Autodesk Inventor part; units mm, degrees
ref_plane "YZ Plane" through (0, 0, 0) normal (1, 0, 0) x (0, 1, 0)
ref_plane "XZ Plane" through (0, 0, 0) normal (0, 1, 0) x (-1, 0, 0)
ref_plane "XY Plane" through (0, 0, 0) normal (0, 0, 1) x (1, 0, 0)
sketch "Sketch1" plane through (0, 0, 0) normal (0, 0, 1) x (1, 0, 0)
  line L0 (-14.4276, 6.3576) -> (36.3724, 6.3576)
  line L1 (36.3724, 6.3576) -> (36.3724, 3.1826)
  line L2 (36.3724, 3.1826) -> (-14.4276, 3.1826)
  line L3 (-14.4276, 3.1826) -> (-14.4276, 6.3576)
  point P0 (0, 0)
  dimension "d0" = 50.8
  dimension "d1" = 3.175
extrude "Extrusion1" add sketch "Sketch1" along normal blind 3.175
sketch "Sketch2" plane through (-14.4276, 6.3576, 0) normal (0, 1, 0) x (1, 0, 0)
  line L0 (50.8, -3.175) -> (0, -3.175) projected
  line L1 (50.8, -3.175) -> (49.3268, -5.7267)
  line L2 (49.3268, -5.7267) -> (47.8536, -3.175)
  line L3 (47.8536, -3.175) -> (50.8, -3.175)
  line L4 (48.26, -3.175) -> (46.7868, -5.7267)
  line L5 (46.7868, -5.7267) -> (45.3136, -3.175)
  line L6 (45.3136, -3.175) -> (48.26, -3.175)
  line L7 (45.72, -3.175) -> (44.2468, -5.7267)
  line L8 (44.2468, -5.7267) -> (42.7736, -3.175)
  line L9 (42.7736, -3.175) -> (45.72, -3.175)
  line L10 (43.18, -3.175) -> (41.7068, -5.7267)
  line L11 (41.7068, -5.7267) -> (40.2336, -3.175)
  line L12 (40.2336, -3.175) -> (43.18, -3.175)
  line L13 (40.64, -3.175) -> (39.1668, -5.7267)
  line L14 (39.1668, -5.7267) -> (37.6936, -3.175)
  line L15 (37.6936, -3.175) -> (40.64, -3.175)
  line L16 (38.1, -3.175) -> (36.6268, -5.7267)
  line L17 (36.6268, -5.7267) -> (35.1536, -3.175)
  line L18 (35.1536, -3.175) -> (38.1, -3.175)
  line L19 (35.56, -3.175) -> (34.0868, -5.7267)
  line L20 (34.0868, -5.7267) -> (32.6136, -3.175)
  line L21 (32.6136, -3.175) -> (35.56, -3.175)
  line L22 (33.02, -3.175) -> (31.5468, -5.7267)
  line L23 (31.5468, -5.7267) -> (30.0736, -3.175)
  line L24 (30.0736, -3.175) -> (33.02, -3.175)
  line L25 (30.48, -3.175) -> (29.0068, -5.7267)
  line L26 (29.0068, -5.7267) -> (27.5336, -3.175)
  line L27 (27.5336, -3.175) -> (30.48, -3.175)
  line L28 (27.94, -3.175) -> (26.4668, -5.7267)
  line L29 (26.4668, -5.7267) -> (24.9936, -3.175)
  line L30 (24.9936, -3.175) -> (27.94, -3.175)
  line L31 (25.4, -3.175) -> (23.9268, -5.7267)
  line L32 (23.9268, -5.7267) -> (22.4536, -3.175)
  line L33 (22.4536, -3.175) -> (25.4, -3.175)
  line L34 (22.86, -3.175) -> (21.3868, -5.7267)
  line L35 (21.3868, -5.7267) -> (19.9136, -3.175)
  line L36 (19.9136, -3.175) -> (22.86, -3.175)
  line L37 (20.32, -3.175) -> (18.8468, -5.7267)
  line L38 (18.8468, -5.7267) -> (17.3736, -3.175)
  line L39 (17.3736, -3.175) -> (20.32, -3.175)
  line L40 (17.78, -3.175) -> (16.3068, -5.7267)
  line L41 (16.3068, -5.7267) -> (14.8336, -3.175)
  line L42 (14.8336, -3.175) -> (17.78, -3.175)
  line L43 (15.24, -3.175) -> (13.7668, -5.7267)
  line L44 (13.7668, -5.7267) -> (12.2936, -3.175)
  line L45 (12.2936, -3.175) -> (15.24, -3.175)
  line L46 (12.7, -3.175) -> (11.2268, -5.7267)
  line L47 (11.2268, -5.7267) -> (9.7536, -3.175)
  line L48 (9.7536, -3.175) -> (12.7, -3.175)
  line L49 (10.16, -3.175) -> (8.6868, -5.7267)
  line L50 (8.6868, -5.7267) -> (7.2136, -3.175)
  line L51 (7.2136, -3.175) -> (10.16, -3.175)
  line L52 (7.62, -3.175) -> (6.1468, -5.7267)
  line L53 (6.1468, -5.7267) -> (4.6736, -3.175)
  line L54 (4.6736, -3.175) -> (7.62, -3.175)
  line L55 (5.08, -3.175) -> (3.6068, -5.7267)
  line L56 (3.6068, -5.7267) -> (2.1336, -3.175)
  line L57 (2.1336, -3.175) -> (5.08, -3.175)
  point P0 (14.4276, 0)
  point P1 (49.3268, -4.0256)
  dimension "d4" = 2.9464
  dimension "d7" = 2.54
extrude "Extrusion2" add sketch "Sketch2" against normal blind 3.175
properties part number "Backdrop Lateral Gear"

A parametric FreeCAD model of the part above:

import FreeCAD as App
import Part
import Sketcher
Q = App.Units.Quantity

doc = App.newDocument("Part")
body = doc.addObject("PartDesign::Body", "Body")

sketch1 = body.newObject("Sketcher::SketchObject", "Sketch")
sketch1.AttachmentSupport = (doc.getObject("XY_Plane"), [""])
sketch1.MapMode = "FlatFace"
sketch1.addGeometry([
    Part.LineSegment(App.Vector(36.4, 6.4, 0), App.Vector(-14.4, 6.4, 0)),
    Part.LineSegment(App.Vector(-14.4, 6.4, 0), App.Vector(-14.4, 3.2, 0)),
    Part.LineSegment(App.Vector(-14.4, 3.2, 0), App.Vector(36.4, 3.2, 0)),
    Part.LineSegment(App.Vector(36.4, 3.2, 0), App.Vector(36.4, 6.4, 0)),
], False)
sketch1.addConstraint([
    Sketcher.Constraint("Coincident", 0, 2, 1, 1),
    Sketcher.Constraint("Coincident", 1, 2, 2, 1),
    Sketcher.Constraint("Coincident", 2, 2, 3, 1),
    Sketcher.Constraint("Coincident", 3, 2, 0, 1),
    Sketcher.Constraint("Horizontal", 0),
    Sketcher.Constraint("Vertical", 1),
    Sketcher.Constraint("Horizontal", 2),
    Sketcher.Constraint("Vertical", 3),
    Sketcher.Constraint("DistanceX", 0, 2, 0, 1, Q("2 in")),
    Sketcher.Constraint("DistanceY", 1, 2, 1, 1, Q("0.125 in")),
    Sketcher.Constraint("DistanceY", -1, 1, 0, 2, Q("0.2503 in")),
    Sketcher.Constraint("DistanceX", 0, 2, -1, 1, 14.4276),
])
pad1 = body.newObject("PartDesign::Pad", "Pad")
pad1.Profile = sketch1
pad1.Length = Q("0.125 in")

sketch2 = body.newObject("Sketcher::SketchObject", "Sketch001")
sketch2.AttachmentSupport = (doc.getObject("XZ_Plane"), [""])
sketch2.MapMode = "FlatFace"
sketch2.AttachmentOffset = App.Placement(App.Vector(0, 0, -0.2502992 * 25.4), App.Rotation())
sketch2.addGeometry([
    Part.LineSegment(App.Vector(34.9, 5.7, 0), App.Vector(36.4, 3.2, 0)),
    Part.LineSegment(App.Vector(36.4, 3.2, 0), App.Vector(-12.3, 3.2, 0)),
    Part.LineSegment(App.Vector(-12.3, 3.2, 0), App.Vector(-10.8, 5.7, 0)),
    Part.LineSegment(App.Vector(-10.8, 5.7, 0), App.Vector(-9.6, 3.5, 0)),
    Part.LineSegment(App.Vector(-9.6, 3.5, 0), App.Vector(-8.3, 5.7, 0)),
    Part.LineSegment(App.Vector(-8.3, 5.7, 0), App.Vector(-7, 3.5, 0)),
    Part.LineSegment(App.Vector(-7, 3.5, 0), App.Vector(-5.7, 5.7, 0)),
    Part.LineSegment(App.Vector(-5.7, 5.7, 0), App.Vector(-4.5, 3.5, 0)),
    Part.LineSegment(App.Vector(-4.5, 3.5, 0), App.Vector(-3.2, 5.7, 0)),
    Part.LineSegment(App.Vector(-3.2, 5.7, 0), App.Vector(-1.9, 3.5, 0)),
    Part.LineSegment(App.Vector(-1.9, 3.5, 0), App.Vector(-0.7, 5.7, 0)),
    Part.LineSegment(App.Vector(-0.7, 5.7, 0), App.Vector(0.6, 3.5, 0)),
    Part.LineSegment(App.Vector(0.6, 3.5, 0), App.Vector(1.9, 5.7, 0)),
    Part.LineSegment(App.Vector(1.9, 5.7, 0), App.Vector(3.1, 3.5, 0)),
    Part.LineSegment(App.Vector(3.1, 3.5, 0), App.Vector(4.4, 5.7, 0)),
    Part.LineSegment(App.Vector(4.4, 5.7, 0), App.Vector(5.7, 3.5, 0)),
    Part.LineSegment(App.Vector(5.7, 3.5, 0), App.Vector(7, 5.7, 0)),
    Part.LineSegment(App.Vector(7, 5.7, 0), App.Vector(8.2, 3.5, 0)),
    Part.LineSegment(App.Vector(8.2, 3.5, 0), App.Vector(9.5, 5.7, 0)),
    Part.LineSegment(App.Vector(9.5, 5.7, 0), App.Vector(10.8, 3.5, 0)),
    Part.LineSegment(App.Vector(10.8, 3.5, 0), App.Vector(12, 5.7, 0)),
    Part.LineSegment(App.Vector(12, 5.7, 0), App.Vector(13.3, 3.5, 0)),
    Part.LineSegment(App.Vector(13.3, 3.5, 0), App.Vector(14.6, 5.7, 0)),
    Part.LineSegment(App.Vector(14.6, 5.7, 0), App.Vector(15.8, 3.5, 0)),
    Part.LineSegment(App.Vector(15.8, 3.5, 0), App.Vector(17.1, 5.7, 0)),
    Part.LineSegment(App.Vector(17.1, 5.7, 0), App.Vector(18.4, 3.5, 0)),
    Part.LineSegment(App.Vector(18.4, 3.5, 0), App.Vector(19.7, 5.7, 0)),
    Part.LineSegment(App.Vector(19.7, 5.7, 0), App.Vector(20.9, 3.5, 0)),
    Part.LineSegment(App.Vector(20.9, 3.5, 0), App.Vector(22.2, 5.7, 0)),
    Part.LineSegment(App.Vector(22.2, 5.7, 0), App.Vector(23.5, 3.5, 0)),
    Part.LineSegment(App.Vector(23.5, 3.5, 0), App.Vector(24.7, 5.7, 0)),
    Part.LineSegment(App.Vector(24.7, 5.7, 0), App.Vector(26, 3.5, 0)),
    Part.LineSegment(App.Vector(26, 3.5, 0), App.Vector(27.3, 5.7, 0)),
    Part.LineSegment(App.Vector(27.3, 5.7, 0), App.Vector(28.5, 3.5, 0)),
    Part.LineSegment(App.Vector(28.5, 3.5, 0), App.Vector(29.8, 5.7, 0)),
    Part.LineSegment(App.Vector(29.8, 5.7, 0), App.Vector(31.1, 3.5, 0)),
    Part.LineSegment(App.Vector(31.1, 3.5, 0), App.Vector(32.4, 5.7, 0)),
    Part.LineSegment(App.Vector(32.4, 5.7, 0), App.Vector(33.6, 3.5, 0)),
    Part.LineSegment(App.Vector(33.6, 3.5, 0), App.Vector(34.9, 5.7, 0)),
], False)
sketch2.addConstraint([
    Sketcher.Constraint("Coincident", 0, 2, 1, 1),
    Sketcher.Constraint("Coincident", 1, 2, 2, 1),
    Sketcher.Constraint("Coincident", 2, 2, 3, 1),
    Sketcher.Constraint("Coincident", 3, 2, 4, 1),
    Sketcher.Constraint("Coincident", 4, 2, 5, 1),
    Sketcher.Constraint("Coincident", 5, 2, 6, 1),
    Sketcher.Constraint("Coincident", 6, 2, 7, 1),
    Sketcher.Constraint("Coincident", 7, 2, 8, 1),
    Sketcher.Constraint("Coincident", 8, 2, 9, 1),
    Sketcher.Constraint("Coincident", 9, 2, 10, 1),
    Sketcher.Constraint("Coincident", 10, 2, 11, 1),
    Sketcher.Constraint("Coincident", 11, 2, 12, 1),
    Sketcher.Constraint("Coincident", 12, 2, 13, 1),
    Sketcher.Constraint("Coincident", 13, 2, 14, 1),
    Sketcher.Constraint("Coincident", 14, 2, 15, 1),
    Sketcher.Constraint("Coincident", 15, 2, 16, 1),
    Sketcher.Constraint("Coincident", 16, 2, 17, 1),
    Sketcher.Constraint("Coincident", 17, 2, 18, 1),
    Sketcher.Constraint("Coincident", 18, 2, 19, 1),
    Sketcher.Constraint("Coincident", 19, 2, 20, 1),
    Sketcher.Constraint("Coincident", 20, 2, 21, 1),
    Sketcher.Constraint("Coincident", 21, 2, 22, 1),
    Sketcher.Constraint("Coincident", 22, 2, 23, 1),
    Sketcher.Constraint("Coincident", 23, 2, 24, 1),
    Sketcher.Constraint("Coincident", 24, 2, 25, 1),
    Sketcher.Constraint("Coincident", 25, 2, 26, 1),
    Sketcher.Constraint("Coincident", 26, 2, 27, 1),
    Sketcher.Constraint("Coincident", 27, 2, 28, 1),
    Sketcher.Constraint("Coincident", 28, 2, 29, 1),
    Sketcher.Constraint("Coincident", 29, 2, 30, 1),
    Sketcher.Constraint("Coincident", 30, 2, 31, 1),
    Sketcher.Constraint("Coincident", 31, 2, 32, 1),
    Sketcher.Constraint("Coincident", 32, 2, 33, 1),
    Sketcher.Constraint("Coincident", 33, 2, 34, 1),
    Sketcher.Constraint("Coincident", 34, 2, 35, 1),
    Sketcher.Constraint("Coincident", 35, 2, 36, 1),
    Sketcher.Constraint("Coincident", 36, 2, 37, 1),
    Sketcher.Constraint("Coincident", 37, 2, 38, 1),
    Sketcher.Constraint("Coincident", 38, 2, 0, 1),
    Sketcher.Constraint("Horizontal", 1),
    Sketcher.Constraint("Parallel", 0, 3),
    Sketcher.Constraint("Parallel", 2, 4),
    Sketcher.Constraint("Parallel", 3, 5),
    Sketcher.Constraint("Parallel", 4, 6),
    Sketcher.Constraint("Parallel", 5, 7),
    Sketcher.Constraint("Parallel", 6, 8),
    Sketcher.Constraint("Parallel", 7, 9),
    Sketcher.Constraint("Parallel", 8, 10),
    Sketcher.Constraint("Parallel", 9, 11),
    Sketcher.Constraint("Parallel", 10, 12),
    Sketcher.Constraint("Parallel", 11, 13),
    Sketcher.Constraint("Parallel", 12, 14),
    Sketcher.Constraint("Parallel", 13, 15),
    Sketcher.Constraint("Parallel", 14, 16),
    Sketcher.Constraint("Parallel", 15, 17),
    Sketcher.Constraint("Parallel", 16, 18),
    Sketcher.Constraint("Parallel", 17, 19),
    Sketcher.Constraint("Parallel", 18, 20),
    Sketcher.Constraint("Parallel", 19, 21),
    Sketcher.Constraint("Parallel", 20, 22),
    Sketcher.Constraint("Parallel", 21, 23),
    Sketcher.Constraint("Parallel", 22, 24),
    Sketcher.Constraint("Parallel", 23, 25),
    Sketcher.Constraint("Parallel", 24, 26),
    Sketcher.Constraint("Parallel", 25, 27),
    Sketcher.Constraint("Parallel", 26, 28),
    Sketcher.Constraint("Parallel", 27, 29),
    Sketcher.Constraint("Parallel", 28, 30),
    Sketcher.Constraint("Parallel", 29, 31),
    Sketcher.Constraint("Parallel", 30, 32),
    Sketcher.Constraint("Parallel", 31, 33),
    Sketcher.Constraint("Parallel", 32, 34),
    Sketcher.Constraint("Parallel", 33, 35),
    Sketcher.Constraint("Parallel", 34, 36),
    Sketcher.Constraint("Parallel", 35, 37),
    Sketcher.Constraint("Parallel", 36, 38),
    Sketcher.Constraint("Horizontal", 2, 2, 4, 2),
    Sketcher.Constraint("Horizontal", 3, 2, 5, 2),
    Sketcher.Constraint("Horizontal", 4, 2, 6, 2),
    Sketcher.Constraint("Horizontal", 5, 2, 7, 2),
    Sketcher.Constraint("Horizontal", 6, 2, 8, 2),
    Sketcher.Constraint("Horizontal", 7, 2, 9, 2),
    Sketcher.Constraint("Horizontal", 8, 2, 10, 2),
    Sketcher.Constraint("Horizontal", 9, 2, 11, 2),
    Sketcher.Constraint("Horizontal", 10, 2, 12, 2),
    Sketcher.Constraint("Horizontal", 11, 2, 13, 2),
    Sketcher.Constraint("Horizontal", 12, 2, 14, 2),
    Sketcher.Constraint("Horizontal", 13, 2, 15, 2),
    Sketcher.Constraint("Horizontal", 14, 2, 16, 2),
    Sketcher.Constraint("Horizontal", 15, 2, 17, 2),
    Sketcher.Constraint("Horizontal", 16, 2, 18, 2),
    Sketcher.Constraint("Horizontal", 17, 2, 19, 2),
    Sketcher.Constraint("Horizontal", 18, 2, 20, 2),
    Sketcher.Constraint("Horizontal", 19, 2, 21, 2),
    Sketcher.Constraint("Horizontal", 20, 2, 22, 2),
    Sketcher.Constraint("Horizontal", 21, 2, 23, 2),
    Sketcher.Constraint("Horizontal", 22, 2, 24, 2),
    Sketcher.Constraint("Horizontal", 23, 2, 25, 2),
    Sketcher.Constraint("Horizontal", 24, 2, 26, 2),
    Sketcher.Constraint("Horizontal", 25, 2, 27, 2),
    Sketcher.Constraint("Horizontal", 26, 2, 28, 2),
    Sketcher.Constraint("Horizontal", 27, 2, 29, 2),
    Sketcher.Constraint("Horizontal", 28, 2, 30, 2),
    Sketcher.Constraint("Horizontal", 29, 2, 31, 2),
    Sketcher.Constraint("Horizontal", 30, 2, 32, 2),
    Sketcher.Constraint("Horizontal", 31, 2, 33, 2),
    Sketcher.Constraint("Horizontal", 32, 2, 34, 2),
    Sketcher.Constraint("Horizontal", 33, 2, 35, 2),
    Sketcher.Constraint("Horizontal", 34, 2, 36, 2),
    Sketcher.Constraint("Horizontal", 35, 2, 37, 2),
    Sketcher.Constraint("Horizontal", 36, 2, 38, 2),
    Sketcher.Constraint("Equal", 0, 2),
    Sketcher.Constraint("Distance", 3, Q("0.1 in")),
    Sketcher.Constraint("DistanceX", 2, 2, 4, 2, Q("0.1 in")),
    Sketcher.Constraint("Distance", 0, Q("0.116 in")),
    Sketcher.Constraint("DistanceY", -1, 1, 0, 2, Q("0.125 in")),
    Sketcher.Constraint("DistanceX", -1, 1, 0, 2, 36.3724),
])
pad2 = body.newObject("PartDesign::Pad", "Pad001")
pad2.Profile = sketch2
pad2.Length = Q("0.125 in")

doc.recompute()
